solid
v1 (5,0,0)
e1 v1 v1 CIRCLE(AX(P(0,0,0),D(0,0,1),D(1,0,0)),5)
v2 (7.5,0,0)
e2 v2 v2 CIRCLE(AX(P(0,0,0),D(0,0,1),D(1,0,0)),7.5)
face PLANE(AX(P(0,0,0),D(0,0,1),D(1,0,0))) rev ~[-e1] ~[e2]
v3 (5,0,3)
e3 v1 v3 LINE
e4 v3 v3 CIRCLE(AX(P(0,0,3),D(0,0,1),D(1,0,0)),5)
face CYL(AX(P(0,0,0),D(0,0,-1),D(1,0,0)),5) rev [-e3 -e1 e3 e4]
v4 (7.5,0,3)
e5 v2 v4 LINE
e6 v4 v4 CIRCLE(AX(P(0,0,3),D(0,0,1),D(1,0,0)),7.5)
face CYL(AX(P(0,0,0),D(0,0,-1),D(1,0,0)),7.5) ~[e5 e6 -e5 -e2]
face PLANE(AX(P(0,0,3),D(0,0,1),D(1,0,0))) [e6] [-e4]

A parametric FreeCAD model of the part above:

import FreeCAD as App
import Part
import Sketcher
Q = App.Units.Quantity

doc = App.newDocument("Part")
body = doc.addObject("PartDesign::Body", "Body")

sketch1 = body.newObject("Sketcher::SketchObject", "Sketch")
sketch1.AttachmentSupport = (doc.getObject("XY_Plane"), [""])
sketch1.MapMode = "FlatFace"
sketch1.addGeometry([
    Part.Circle(App.Vector(0, 0, 0), App.Vector(0, 0, 1), 8),
    Part.Circle(App.Vector(0, 0, 0), App.Vector(0, 0, 1), 5),
], False)
sketch1.addConstraint([
    Sketcher.Constraint("Coincident", 0, 3, -1, 1),
    Sketcher.Constraint("Coincident", 1, 3, -1, 1),
    Sketcher.Constraint("Diameter", 0, Q("15 mm")),
    Sketcher.Constraint("Diameter", 1, Q("10 mm")),
])
pad1 = body.newObject("PartDesign::Pad", "Pad")
pad1.Profile = sketch1
pad1.Length = 3

doc.recompute()
